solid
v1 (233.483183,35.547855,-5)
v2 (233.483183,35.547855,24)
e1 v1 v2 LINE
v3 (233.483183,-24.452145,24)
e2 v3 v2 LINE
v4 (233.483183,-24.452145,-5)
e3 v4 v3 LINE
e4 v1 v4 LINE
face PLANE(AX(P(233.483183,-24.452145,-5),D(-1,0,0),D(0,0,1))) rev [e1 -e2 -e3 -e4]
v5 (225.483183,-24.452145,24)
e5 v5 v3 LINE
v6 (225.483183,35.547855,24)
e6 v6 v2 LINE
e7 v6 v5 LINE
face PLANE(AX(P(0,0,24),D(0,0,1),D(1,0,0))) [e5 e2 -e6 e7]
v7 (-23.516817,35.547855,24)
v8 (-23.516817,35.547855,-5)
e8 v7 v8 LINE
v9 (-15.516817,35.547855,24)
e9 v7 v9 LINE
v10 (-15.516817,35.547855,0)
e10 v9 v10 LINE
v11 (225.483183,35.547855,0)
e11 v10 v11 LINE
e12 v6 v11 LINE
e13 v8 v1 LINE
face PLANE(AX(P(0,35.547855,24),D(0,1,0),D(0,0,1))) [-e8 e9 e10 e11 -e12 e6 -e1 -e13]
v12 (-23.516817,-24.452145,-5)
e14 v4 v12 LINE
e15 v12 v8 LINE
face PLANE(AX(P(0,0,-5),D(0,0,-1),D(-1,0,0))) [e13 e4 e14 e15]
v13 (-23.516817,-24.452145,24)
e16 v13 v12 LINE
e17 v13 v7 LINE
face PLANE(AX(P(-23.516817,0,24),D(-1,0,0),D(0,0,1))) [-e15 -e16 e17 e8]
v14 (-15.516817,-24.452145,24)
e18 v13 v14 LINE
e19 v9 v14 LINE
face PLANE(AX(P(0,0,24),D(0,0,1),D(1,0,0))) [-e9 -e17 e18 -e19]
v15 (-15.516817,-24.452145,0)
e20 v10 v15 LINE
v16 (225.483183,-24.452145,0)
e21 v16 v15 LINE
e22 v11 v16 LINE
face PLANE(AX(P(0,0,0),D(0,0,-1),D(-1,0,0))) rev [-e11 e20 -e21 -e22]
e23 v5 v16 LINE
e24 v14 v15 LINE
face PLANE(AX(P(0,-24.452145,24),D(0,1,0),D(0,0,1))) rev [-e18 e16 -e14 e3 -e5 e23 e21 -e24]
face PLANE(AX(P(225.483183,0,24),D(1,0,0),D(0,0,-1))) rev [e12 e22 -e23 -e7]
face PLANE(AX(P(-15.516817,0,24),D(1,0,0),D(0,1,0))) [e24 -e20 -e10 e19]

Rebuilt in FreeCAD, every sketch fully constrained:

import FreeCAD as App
import Part
import Sketcher

V = App.Vector


def add_polygon(sketch, points):
    """Adds a closed chain of lines whose ends are joined by coincident constraints."""
    first, n = sketch.GeometryCount, len(points)
    for a, b in zip(points, points[1:] + points[:1]):
        sketch.addGeometry(Part.LineSegment(App.Vector(*a, 0), App.Vector(*b, 0)), False)
    for i in range(n):
        sketch.addConstraint(Sketcher.Constraint("Coincident", first + i, 2, first + (i + 1) % n, 1))

doc = App.newDocument("Part")
params = doc.addObject("Spreadsheet::Sheet", "Params")
for row, (alias, value) in enumerate([
    ("sketch1_width", "8 mm"),
    ("sketch1_height", "60 mm"),
    ("pad1_length", "24 mm"),
    ("sketch2_width", "8 mm"),
    ("sketch2_height", "60 mm"),
    ("pad2_length", "24 mm"),
    ("sketch3_width", "257 mm"),
    ("sketch3_height", "60 mm"),
    ("pad3_length", "5 mm"),
], start=1):
    params.set(f"A{row}", alias)
    params.set(f"B{row}", "=" + value)
    params.setAlias(f"B{row}", alias)

body = doc.addObject("PartDesign::Body", "Body")

# Sketch on XY plane
sketch1 = doc.addObject("Sketcher::SketchObject", "Sketch")
body.addObject(sketch1)
sketch1.AttachmentSupport = (doc.XY_Plane, [""])
sketch1.MapMode = "FlatFace"
add_polygon(sketch1, [(-24, 36), (-24, -24), (-16, -24), (-16, 36)])  # lines 0-3
sketch1.addConstraint(Sketcher.Constraint("Vertical", 0))
sketch1.addConstraint(Sketcher.Constraint("Horizontal", 1))
sketch1.addConstraint(Sketcher.Constraint("Vertical", 2))
sketch1.addConstraint(Sketcher.Constraint("Horizontal", 3))
sketch1.addConstraint(Sketcher.Constraint("DistanceX", 1, 1, 1, 2, 8.0))
sketch1.addConstraint(Sketcher.Constraint("DistanceY", 0, 2, 0, 1, 60.0))
sketch1.addConstraint(Sketcher.Constraint("DistanceX", 0, 2, -1, 1, 23.516817))
sketch1.addConstraint(Sketcher.Constraint("DistanceY", 0, 2, -1, 1, 24.452145))
sketch1.setExpression("Constraints[8]", "Params.sketch1_width")
sketch1.setExpression("Constraints[9]", "Params.sketch1_height")
pad1 = doc.addObject("PartDesign::Pad", "Pad")
body.addObject(pad1)
pad1.Profile = sketch1
pad1.setExpression("Length", "Params.pad1_length")
body2 = doc.addObject("PartDesign::Body", "Body001")

# Sketch on XY plane
sketch2 = doc.addObject("Sketcher::SketchObject", "Sketch001")
body2.addObject(sketch2)
sketch2.AttachmentSupport = (doc.getObject("XY_Plane001"), [""])
sketch2.MapMode = "FlatFace"
add_polygon(sketch2, [(225, 36), (225, -24), (233, -24), (233, 36)])  # lines 0-3
sketch2.addConstraint(Sketcher.Constraint("Vertical", 0))
sketch2.addConstraint(Sketcher.Constraint("Horizontal", 1))
sketch2.addConstraint(Sketcher.Constraint("Vertical", 2))
sketch2.addConstraint(Sketcher.Constraint("Horizontal", 3))
sketch2.addConstraint(Sketcher.Constraint("DistanceX", 1, 1, 1, 2, 8.0))
sketch2.addConstraint(Sketcher.Constraint("DistanceY", 0, 2, 0, 1, 60.0))
sketch2.addConstraint(Sketcher.Constraint("DistanceX", -1, 1, 0, 2, 225.483183))
sketch2.addConstraint(Sketcher.Constraint("DistanceY", 0, 2, -1, 1, 24.452145))
sketch2.setExpression("Constraints[8]", "Params.sketch2_width")
sketch2.setExpression("Constraints[9]", "Params.sketch2_height")
pad2 = doc.addObject("PartDesign::Pad", "Pad001")
body2.addObject(pad2)
pad2.Profile = sketch2
pad2.setExpression("Length", "Params.pad2_length")
body.AllowCompound = True
doc.recompute()

boolean = doc.addObject("PartDesign::Boolean", "Boolean")
body.addObject(boolean)
boolean.Type = "Fuse"
boolean.addObjects([body2])

# Sketch on XY plane
sketch3 = doc.addObject("Sketcher::SketchObject", "Sketch002")
body.addObject(sketch3)
sketch3.AttachmentSupport = (doc.XY_Plane, [""])
sketch3.MapMode = "FlatFace"
add_polygon(sketch3, [(233, 36), (233, -24), (-24, -24), (-24, 36)])  # lines 0-3
sketch3.addConstraint(Sketcher.Constraint("Vertical", 0))
sketch3.addConstraint(Sketcher.Constraint("Horizontal", 1))
sketch3.addConstraint(Sketcher.Constraint("Vertical", 2))
sketch3.addConstraint(Sketcher.Constraint("Horizontal", 3))
sketch3.addConstraint(Sketcher.Constraint("DistanceX", 1, 2, 1, 1, 257.0))
sketch3.addConstraint(Sketcher.Constraint("DistanceY", 0, 2, 0, 1, 60.0))
sketch3.addConstraint(Sketcher.Constraint("DistanceX", -1, 1, 0, 2, 233.483183))
sketch3.addConstraint(Sketcher.Constraint("DistanceY", 0, 2, -1, 1, 24.452145))
sketch3.setExpression("Constraints[8]", "Params.sketch3_width")
sketch3.setExpression("Constraints[9]", "Params.sketch3_height")
pad3 = doc.addObject("PartDesign::Pad", "Pad002")
body.addObject(pad3)
pad3.Profile = sketch3
pad3.setExpression("Length", "Params.pad3_length")
pad3.Reversed = True

doc.recompute()
